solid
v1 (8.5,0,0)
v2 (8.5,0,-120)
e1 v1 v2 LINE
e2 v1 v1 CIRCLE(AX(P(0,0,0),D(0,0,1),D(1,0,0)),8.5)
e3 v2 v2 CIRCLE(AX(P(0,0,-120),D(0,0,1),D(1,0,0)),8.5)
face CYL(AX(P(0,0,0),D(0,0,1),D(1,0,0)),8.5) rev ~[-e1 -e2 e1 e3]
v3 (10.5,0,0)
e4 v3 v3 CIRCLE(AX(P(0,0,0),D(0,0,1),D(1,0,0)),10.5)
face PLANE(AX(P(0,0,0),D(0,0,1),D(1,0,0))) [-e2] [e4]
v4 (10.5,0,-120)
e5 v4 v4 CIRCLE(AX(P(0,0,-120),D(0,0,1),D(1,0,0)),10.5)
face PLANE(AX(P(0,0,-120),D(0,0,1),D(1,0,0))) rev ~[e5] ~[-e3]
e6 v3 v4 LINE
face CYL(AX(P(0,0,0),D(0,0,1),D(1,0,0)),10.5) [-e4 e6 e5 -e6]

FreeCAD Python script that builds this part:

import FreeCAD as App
import Part
import Sketcher
from FreeCAD import Vector
Q = App.Units.Quantity

doc = App.newDocument("Part")
body = doc.addObject("PartDesign::Body", "Body")

# Sketch on XY plane
sketch1 = doc.addObject("Sketcher::SketchObject", "Sketch")
body.addObject(sketch1)
sketch1.AttachmentSupport = (doc.XY_Plane, [""])
sketch1.MapMode = "FlatFace"
sketch1.addGeometry(Part.Circle(Vector(0, 0, 0), Vector(0, 0, 1), 10), False)
sketch1.addGeometry(Part.Circle(Vector(0, 0, 0), Vector(0, 0, 1), 8), False)
sketch1.addConstraint(Sketcher.Constraint("Coincident", 0, 3, -1, 1))
sketch1.addConstraint(Sketcher.Constraint("Coincident", 1, 3, -1, 1))
sketch1.addConstraint(Sketcher.Constraint("Diameter", 0, Q("21 mm")))
sketch1.addConstraint(Sketcher.Constraint("Diameter", 1, Q("17 mm")))
pad1 = doc.addObject("PartDesign::Pad", "Pad")
body.addObject(pad1)
pad1.Profile = sketch1
pad1.Length = 120
pad1.Reversed = True

doc.recompute()
